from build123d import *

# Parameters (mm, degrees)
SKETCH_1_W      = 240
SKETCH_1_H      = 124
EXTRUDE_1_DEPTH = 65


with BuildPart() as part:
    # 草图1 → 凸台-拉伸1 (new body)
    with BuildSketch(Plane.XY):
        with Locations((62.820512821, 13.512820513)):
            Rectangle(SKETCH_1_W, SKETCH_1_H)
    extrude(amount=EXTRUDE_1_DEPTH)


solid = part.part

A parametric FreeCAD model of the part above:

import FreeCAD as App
import Part
import Sketcher
Q = App.Units.Quantity

doc = App.newDocument("Part")
params = doc.addObject("Spreadsheet::Sheet", "Params")
for row, (alias, value) in enumerate([
    ("sketch1_width", "240 mm"),
    ("sketch1_height", "124 mm"),
    ("pad1_length", "65 mm"),
], start=1):
    params.set(f"A{row}", alias)
    params.set(f"B{row}", "=" + value)
    params.setAlias(f"B{row}", alias)

body = doc.addObject("PartDesign::Body", "Body")

sketch1 = doc.addObject("Sketcher::SketchObject", "Sketch")
body.addObject(sketch1)
sketch1.AttachmentSupport = (doc.XY_Plane, [""])
sketch1.MapMode = "FlatFace"
sketch1.addGeometry([
    Part.LineSegment(App.Vector(-57, 76, 0), App.Vector(-57, -48, 0)),
    Part.LineSegment(App.Vector(-57, -48, 0), App.Vector(183, -48, 0)),
    Part.LineSegment(App.Vector(183, -48, 0), App.Vector(183, 76, 0)),
    Part.LineSegment(App.Vector(183, 76, 0), App.Vector(-57, 76, 0)),
], False)
sketch1.addConstraint([
    Sketcher.Constraint("Coincident", 0, 2, 1, 1),
    Sketcher.Constraint("Coincident", 1, 2, 2, 1),
    Sketcher.Constraint("Coincident", 2, 2, 3, 1),
    Sketcher.Constraint("Coincident", 3, 2, 0, 1),
    Sketcher.Constraint("Vertical", 0),
    Sketcher.Constraint("Horizontal", 1),
    Sketcher.Constraint("Vertical", 2),
    Sketcher.Constraint("Horizontal", 3),
    Sketcher.Constraint("DistanceX", 1, 1, 1, 2, Q("240 mm")),
    Sketcher.Constraint("DistanceY", 0, 2, 0, 1, Q("124 mm")),
    Sketcher.Constraint("DistanceY", 0, 2, -1, 1, Q("48.487179 mm")),
    Sketcher.Constraint("DistanceX", 0, 2, -1, 1, Q("57.179487 mm")),
])
sketch1.setExpression("Constraints[8]", "Params.sketch1_width")
sketch1.setExpression("Constraints[9]", "Params.sketch1_height")
pad1 = doc.addObject("PartDesign::Pad", "Pad")
body.addObject(pad1)
pad1.Profile = sketch1
pad1.setExpression("Length", "Params.pad1_length")

doc.recompute()
